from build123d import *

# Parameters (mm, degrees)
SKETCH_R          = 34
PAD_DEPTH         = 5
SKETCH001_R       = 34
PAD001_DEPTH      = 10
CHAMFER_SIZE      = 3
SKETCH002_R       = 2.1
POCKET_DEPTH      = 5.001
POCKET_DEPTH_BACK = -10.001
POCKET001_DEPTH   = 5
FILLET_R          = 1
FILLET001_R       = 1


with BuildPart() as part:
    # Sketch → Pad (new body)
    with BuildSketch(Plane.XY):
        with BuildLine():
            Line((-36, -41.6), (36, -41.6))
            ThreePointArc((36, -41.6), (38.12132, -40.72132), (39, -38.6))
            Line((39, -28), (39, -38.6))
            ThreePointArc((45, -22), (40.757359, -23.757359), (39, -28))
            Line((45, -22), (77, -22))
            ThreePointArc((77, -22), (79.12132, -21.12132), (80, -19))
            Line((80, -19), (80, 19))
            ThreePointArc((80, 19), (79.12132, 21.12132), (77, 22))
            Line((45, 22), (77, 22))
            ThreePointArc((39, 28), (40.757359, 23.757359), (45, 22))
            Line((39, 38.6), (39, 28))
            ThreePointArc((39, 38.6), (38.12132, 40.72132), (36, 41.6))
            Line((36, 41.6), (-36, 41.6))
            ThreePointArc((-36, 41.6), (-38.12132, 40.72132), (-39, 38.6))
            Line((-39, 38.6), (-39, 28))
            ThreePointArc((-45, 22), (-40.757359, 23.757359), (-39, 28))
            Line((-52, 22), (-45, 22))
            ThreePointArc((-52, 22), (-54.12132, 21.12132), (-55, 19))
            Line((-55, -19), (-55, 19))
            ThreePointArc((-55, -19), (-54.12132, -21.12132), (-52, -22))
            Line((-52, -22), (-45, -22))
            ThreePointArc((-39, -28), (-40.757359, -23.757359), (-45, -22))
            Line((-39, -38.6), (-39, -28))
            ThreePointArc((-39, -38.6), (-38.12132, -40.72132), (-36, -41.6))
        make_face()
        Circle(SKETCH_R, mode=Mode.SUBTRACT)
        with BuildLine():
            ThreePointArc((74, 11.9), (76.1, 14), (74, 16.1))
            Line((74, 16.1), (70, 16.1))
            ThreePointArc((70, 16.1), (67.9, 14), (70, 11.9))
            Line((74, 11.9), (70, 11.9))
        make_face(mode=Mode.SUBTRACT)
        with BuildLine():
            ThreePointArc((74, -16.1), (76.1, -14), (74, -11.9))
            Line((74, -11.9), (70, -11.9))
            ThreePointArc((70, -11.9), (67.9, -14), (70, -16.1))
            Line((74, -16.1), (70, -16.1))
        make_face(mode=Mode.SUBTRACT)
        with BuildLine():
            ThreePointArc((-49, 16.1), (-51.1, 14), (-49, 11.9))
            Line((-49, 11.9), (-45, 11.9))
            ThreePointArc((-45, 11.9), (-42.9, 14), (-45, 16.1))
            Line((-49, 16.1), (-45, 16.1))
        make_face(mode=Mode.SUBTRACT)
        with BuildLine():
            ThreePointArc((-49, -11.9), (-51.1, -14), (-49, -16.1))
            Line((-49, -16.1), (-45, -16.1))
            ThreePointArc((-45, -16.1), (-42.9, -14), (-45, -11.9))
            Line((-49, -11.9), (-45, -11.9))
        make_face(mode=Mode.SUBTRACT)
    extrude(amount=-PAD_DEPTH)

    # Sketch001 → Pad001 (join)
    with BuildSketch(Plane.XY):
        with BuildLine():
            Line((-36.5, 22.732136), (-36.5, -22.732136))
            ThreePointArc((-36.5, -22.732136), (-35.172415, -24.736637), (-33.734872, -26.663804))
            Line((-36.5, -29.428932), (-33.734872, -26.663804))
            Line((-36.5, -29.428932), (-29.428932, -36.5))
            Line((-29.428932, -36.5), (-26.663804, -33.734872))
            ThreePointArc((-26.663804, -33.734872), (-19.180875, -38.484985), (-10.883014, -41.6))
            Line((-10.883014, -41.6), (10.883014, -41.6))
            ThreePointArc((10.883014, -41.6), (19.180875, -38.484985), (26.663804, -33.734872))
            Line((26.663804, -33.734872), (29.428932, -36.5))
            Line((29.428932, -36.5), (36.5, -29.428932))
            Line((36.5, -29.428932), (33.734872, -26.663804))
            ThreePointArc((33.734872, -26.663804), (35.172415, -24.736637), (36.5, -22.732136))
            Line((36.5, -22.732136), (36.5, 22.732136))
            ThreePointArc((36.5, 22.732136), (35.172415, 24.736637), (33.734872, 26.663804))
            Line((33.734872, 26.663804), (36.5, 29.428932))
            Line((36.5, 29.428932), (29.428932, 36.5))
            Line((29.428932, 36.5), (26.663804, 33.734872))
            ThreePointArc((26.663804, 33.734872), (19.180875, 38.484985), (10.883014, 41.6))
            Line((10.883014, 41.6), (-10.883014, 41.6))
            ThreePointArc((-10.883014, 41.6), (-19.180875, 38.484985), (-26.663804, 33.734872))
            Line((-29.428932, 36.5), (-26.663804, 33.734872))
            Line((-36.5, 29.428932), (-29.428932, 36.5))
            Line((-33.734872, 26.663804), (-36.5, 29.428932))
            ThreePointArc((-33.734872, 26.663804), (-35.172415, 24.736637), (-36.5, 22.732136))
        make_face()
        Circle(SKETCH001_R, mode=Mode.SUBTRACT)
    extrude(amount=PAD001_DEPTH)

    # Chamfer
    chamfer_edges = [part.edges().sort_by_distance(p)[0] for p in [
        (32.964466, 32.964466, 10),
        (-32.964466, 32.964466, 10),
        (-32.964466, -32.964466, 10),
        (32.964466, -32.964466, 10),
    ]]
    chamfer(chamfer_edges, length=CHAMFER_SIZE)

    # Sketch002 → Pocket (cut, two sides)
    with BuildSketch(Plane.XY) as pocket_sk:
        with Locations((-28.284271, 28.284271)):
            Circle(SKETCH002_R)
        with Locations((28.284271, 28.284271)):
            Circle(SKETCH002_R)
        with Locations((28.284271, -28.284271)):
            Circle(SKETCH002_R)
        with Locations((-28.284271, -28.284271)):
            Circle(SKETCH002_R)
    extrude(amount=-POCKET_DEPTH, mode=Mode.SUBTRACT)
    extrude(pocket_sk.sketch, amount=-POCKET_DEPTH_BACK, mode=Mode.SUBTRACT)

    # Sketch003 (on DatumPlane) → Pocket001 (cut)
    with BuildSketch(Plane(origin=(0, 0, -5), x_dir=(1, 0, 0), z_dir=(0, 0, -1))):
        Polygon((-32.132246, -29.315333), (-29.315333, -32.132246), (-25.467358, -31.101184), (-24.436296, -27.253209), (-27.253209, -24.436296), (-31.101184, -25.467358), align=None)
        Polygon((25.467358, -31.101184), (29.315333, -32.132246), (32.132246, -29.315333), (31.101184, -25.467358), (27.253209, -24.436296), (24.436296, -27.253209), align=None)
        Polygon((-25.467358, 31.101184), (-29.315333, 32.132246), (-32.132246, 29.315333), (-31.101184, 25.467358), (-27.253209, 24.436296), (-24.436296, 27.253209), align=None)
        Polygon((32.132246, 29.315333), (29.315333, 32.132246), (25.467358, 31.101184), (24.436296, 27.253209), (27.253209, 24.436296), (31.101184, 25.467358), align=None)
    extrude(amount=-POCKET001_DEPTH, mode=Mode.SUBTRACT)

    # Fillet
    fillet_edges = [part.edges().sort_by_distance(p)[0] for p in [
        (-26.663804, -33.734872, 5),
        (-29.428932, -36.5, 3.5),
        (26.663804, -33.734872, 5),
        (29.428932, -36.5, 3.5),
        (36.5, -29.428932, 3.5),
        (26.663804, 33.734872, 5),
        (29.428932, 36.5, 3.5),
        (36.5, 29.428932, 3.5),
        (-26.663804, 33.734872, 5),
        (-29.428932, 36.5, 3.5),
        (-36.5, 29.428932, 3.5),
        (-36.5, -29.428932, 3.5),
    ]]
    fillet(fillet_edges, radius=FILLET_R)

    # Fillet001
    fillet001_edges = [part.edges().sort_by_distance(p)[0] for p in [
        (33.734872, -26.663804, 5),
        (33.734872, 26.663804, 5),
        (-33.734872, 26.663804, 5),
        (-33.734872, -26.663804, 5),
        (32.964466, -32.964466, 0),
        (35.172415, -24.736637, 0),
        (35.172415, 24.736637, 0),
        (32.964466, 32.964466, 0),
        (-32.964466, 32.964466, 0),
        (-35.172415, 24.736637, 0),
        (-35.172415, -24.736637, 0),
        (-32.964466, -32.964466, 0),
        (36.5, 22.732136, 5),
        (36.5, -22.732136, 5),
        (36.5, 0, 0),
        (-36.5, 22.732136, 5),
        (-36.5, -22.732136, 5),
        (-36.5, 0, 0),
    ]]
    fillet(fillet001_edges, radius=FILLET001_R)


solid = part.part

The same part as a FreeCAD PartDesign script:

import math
import FreeCAD as App
import Part
import Sketcher
from FreeCAD import Vector
Q = App.Units.Quantity


def edges_at(feature, points):
    """Names of the edges that pass closest to the given points."""
    edges = feature.Shape.Edges
    near = lambda p: min(range(len(edges)), key=lambda i: edges[i].distToShape(Part.Vertex(*p))[0])
    return sorted({f"Edge{near(p) + 1}" for p in points})

doc = App.newDocument("Part")
body = doc.addObject("PartDesign::Body", "Body")

sketch1 = doc.addObject("Sketcher::SketchObject", "Sketch")
body.addObject(sketch1)
sketch1.AttachmentSupport = (doc.XY_Plane, [""])
sketch1.MapMode = "FlatFace"
sketch1.addGeometry([
    Part.LineSegment(Vector(-36, -41.6, 0), Vector(36, -41.6, 0)),
    Part.ArcOfCircle(Part.Circle(Vector(36, -38.6, 0), Vector(0, 0, 1), 3), math.radians(-90), math.radians(0)),
    Part.LineSegment(Vector(39, -38.6, 0), Vector(39, -28, 0)),
    Part.ArcOfCircle(Part.Circle(Vector(45, -28, 0), Vector(0, 0, 1), 6), math.radians(90), math.radians(180)),
    Part.LineSegment(Vector(45, -22, 0), Vector(77, -22, 0)),
    Part.ArcOfCircle(Part.Circle(Vector(77, -19, 0), Vector(0, 0, 1), 3), math.radians(-90), math.radians(0)),
    Part.LineSegment(Vector(80, -19, 0), Vector(80, 19, 0)),
    Part.ArcOfCircle(Part.Circle(Vector(77, 19, 0), Vector(0, 0, 1), 3), math.radians(0), math.radians(90)),
    Part.LineSegment(Vector(77, 22, 0), Vector(45, 22, 0)),
    Part.ArcOfCircle(Part.Circle(Vector(45, 28, 0), Vector(0, 0, 1), 6), math.radians(180), math.radians(270)),
    Part.LineSegment(Vector(39, 28, 0), Vector(39, 38.6, 0)),
    Part.ArcOfCircle(Part.Circle(Vector(36, 38.6, 0), Vector(0, 0, 1), 3), math.radians(0), math.radians(90)),
    Part.LineSegment(Vector(36, 41.6, 0), Vector(-36, 41.6, 0)),
    Part.ArcOfCircle(Part.Circle(Vector(-36, 38.6, 0), Vector(0, 0, 1), 3), math.radians(90), math.radians(180)),
    Part.LineSegment(Vector(-39, 38.6, 0), Vector(-39, 28, 0)),
    Part.ArcOfCircle(Part.Circle(Vector(-45, 28, 0), Vector(0, 0, 1), 6), math.radians(-90), math.radians(0)),
    Part.LineSegment(Vector(-45, 22, 0), Vector(-52, 22, 0)),
    Part.ArcOfCircle(Part.Circle(Vector(-52, 19, 0), Vector(0, 0, 1), 3), math.radians(90), math.radians(180)),
    Part.LineSegment(Vector(-55, 19, 0), Vector(-55, -19, 0)),
    Part.ArcOfCircle(Part.Circle(Vector(-52, -19, 0), Vector(0, 0, 1), 3), math.radians(-180), math.radians(-90)),
    Part.LineSegment(Vector(-52, -22, 0), Vector(-45, -22, 0)),
    Part.ArcOfCircle(Part.Circle(Vector(-45, -28, 0), Vector(0, 0, 1), 6), math.radians(0), math.radians(90)),
    Part.LineSegment(Vector(-39, -28, 0), Vector(-39, -38.6, 0)),
    Part.ArcOfCircle(Part.Circle(Vector(-36, -38.6, 0), Vector(0, 0, 1), 3), math.radians(-180), math.radians(-90)),
    Part.ArcOfCircle(Part.Circle(Vector(-49, -14, 0), Vector(0, 0, 1), 2.1), math.radians(90), math.radians(270)),
    Part.LineSegment(Vector(-49, -11.9, 0), Vector(-45, -11.9, 0)),
    Part.ArcOfCircle(Part.Circle(Vector(-45, -14, 0), Vector(0, 0, 1), 2.1), math.radians(-90), math.radians(90)),
    Part.LineSegment(Vector(-45, -16.1, 0), Vector(-49, -16.1, 0)),
    Part.ArcOfCircle(Part.Circle(Vector(74, -14, 0), Vector(0, 0, 1), 2.1), math.radians(-90), math.radians(90)),
    Part.LineSegment(Vector(74, -16.1, 0), Vector(70, -16.1, 0)),
    Part.ArcOfCircle(Part.Circle(Vector(70, -14, 0), Vector(0, 0, 1), 2.1), math.radians(90), math.radians(270)),
    Part.LineSegment(Vector(70, -11.9, 0), Vector(74, -11.9, 0)),
    Part.ArcOfCircle(Part.Circle(Vector(-49, 14, 0), Vector(0, 0, 1), 2.1), math.radians(90), math.radians(270)),
    Part.LineSegment(Vector(-49, 16.1, 0), Vector(-45, 16.1, 0)),
    Part.ArcOfCircle(Part.Circle(Vector(-45, 14, 0), Vector(0, 0, 1), 2.1), math.radians(-90), math.radians(90)),
    Part.LineSegment(Vector(-45, 11.9, 0), Vector(-49, 11.9, 0)),
    Part.Circle(Vector(0, 0, 0), Vector(0, 0, 1), 34),
    Part.ArcOfCircle(Part.Circle(Vector(74, 14, 0), Vector(0, 0, 1), 2.1), math.radians(-90), math.radians(90)),
    Part.LineSegment(Vector(74, 11.9, 0), Vector(70, 11.9, 0)),
    Part.ArcOfCircle(Part.Circle(Vector(70, 14, 0), Vector(0, 0, 1), 2.1), math.radians(90), math.radians(270)),
    Part.LineSegment(Vector(70, 16.1, 0), Vector(74, 16.1, 0)),
], False)
sketch1.addConstraint([
    Sketcher.Constraint("Tangent", 0, 2, 1, 1),
    Sketcher.Constraint("Tangent", 1, 2, 2, 1),
    Sketcher.Constraint("Tangent", 2, 2, 3, 2),
    Sketcher.Constraint("Tangent", 3, 1, 4, 1),
    Sketcher.Constraint("Tangent", 4, 2, 5, 1),
    Sketcher.Constraint("Tangent", 5, 2, 6, 1),
    Sketcher.Constraint("Tangent", 6, 2, 7, 1),
    Sketcher.Constraint("Tangent", 7, 2, 8, 1),
    Sketcher.Constraint("Tangent", 8, 2, 9, 2),
    Sketcher.Constraint("Tangent", 9, 1, 10, 1),
    Sketcher.Constraint("Tangent", 10, 2, 11, 1),
    Sketcher.Constraint("Tangent", 11, 2, 12, 1),
    Sketcher.Constraint("Tangent", 12, 2, 13, 1),
    Sketcher.Constraint("Tangent", 13, 2, 14, 1),
    Sketcher.Constraint("Tangent", 14, 2, 15, 2),
    Sketcher.Constraint("Tangent", 15, 1, 16, 1),
    Sketcher.Constraint("Tangent", 16, 2, 17, 1),
    Sketcher.Constraint("Tangent", 17, 2, 18, 1),
    Sketcher.Constraint("Tangent", 18, 2, 19, 1),
    Sketcher.Constraint("Tangent", 19, 2, 20, 1),
    Sketcher.Constraint("Tangent", 20, 2, 21, 2),
    Sketcher.Constraint("Tangent", 21, 1, 22, 1),
    Sketcher.Constraint("Tangent", 22, 2, 23, 1),
    Sketcher.Constraint("Tangent", 23, 2, 0, 1),
    Sketcher.Constraint("Tangent", 24, 1, 25, 1),
    Sketcher.Constraint("Tangent", 25, 2, 26, 2),
    Sketcher.Constraint("Tangent", 26, 1, 27, 1),
    Sketcher.Constraint("Tangent", 27, 2, 24, 2),
    Sketcher.Constraint("Tangent", 28, 1, 29, 1),
    Sketcher.Constraint("Tangent", 29, 2, 30, 2),
    Sketcher.Constraint("Tangent", 30, 1, 31, 1),
    Sketcher.Constraint("Tangent", 31, 2, 28, 2),
    Sketcher.Constraint("Tangent", 32, 1, 33, 1),
    Sketcher.Constraint("Tangent", 33, 2, 34, 2),
    Sketcher.Constraint("Tangent", 34, 1, 35, 1),
    Sketcher.Constraint("Tangent", 35, 2, 32, 2),
    Sketcher.Constraint("Tangent", 37, 1, 38, 1),
    Sketcher.Constraint("Tangent", 38, 2, 39, 2),
    Sketcher.Constraint("Tangent", 39, 1, 40, 1),
    Sketcher.Constraint("Tangent", 40, 2, 37, 2),
    Sketcher.Constraint("Horizontal", 0),
    Sketcher.Constraint("Vertical", 2),
    Sketcher.Constraint("Horizontal", 4),
    Sketcher.Constraint("Vertical", 6),
    Sketcher.Constraint("Horizontal", 8),
    Sketcher.Constraint("Vertical", 10),
    Sketcher.Constraint("Horizontal", 12),
    Sketcher.Constraint("Vertical", 14),
    Sketcher.Constraint("Horizontal", 16),
    Sketcher.Constraint("Vertical", 18),
    Sketcher.Constraint("Horizontal", 20),
    Sketcher.Constraint("Vertical", 22),
    Sketcher.Constraint("Horizontal", 25),
    Sketcher.Constraint("Horizontal", 27),
    Sketcher.Constraint("Horizontal", 29),
    Sketcher.Constraint("Horizontal", 31),
    Sketcher.Constraint("Horizontal", 33),
    Sketcher.Constraint("Horizontal", 35),
    Sketcher.Constraint("Horizontal", 38),
    Sketcher.Constraint("Horizontal", 40),
    Sketcher.Constraint("Coincident", 36, 3, -1, 1),
    Sketcher.Constraint("Equal", 1, 5),
    Sketcher.Constraint("Equal", 5, 7),
    Sketcher.Constraint("Equal", 3, 9),
    Sketcher.Constraint("Equal", 7, 11),
    Sketcher.Constraint("Equal", 11, 13),
    Sketcher.Constraint("Equal", 9, 15),
    Sketcher.Constraint("Equal", 13, 17),
    Sketcher.Constraint("Equal", 17, 19),
    Sketcher.Constraint("Equal", 15, 21),
    Sketcher.Constraint("Equal", 19, 23),
    Sketcher.Constraint("Equal", 26, 28),
    Sketcher.Constraint("Equal", 30, 32),
    Sketcher.Constraint("Equal", 34, 37),
    Sketcher.Constraint("Symmetric", 1, 3, 13, 3, -1, 1),
    Sketcher.Constraint("Symmetric", 9, 3, 21, 3, -1, 1),
    Sketcher.Constraint("Symmetric", 9, 3, 15, 3, -2),
    Sketcher.Constraint("Symmetric", 24, 3, 32, 3, -1),
    Sketcher.Constraint("Symmetric", 28, 3, 37, 3, -1),
    Sketcher.Constraint("Horizontal", 5, 3, 19, 3),
    Sketcher.Constraint("Horizontal", 26, 3, 28, 3),
    Sketcher.Constraint("Vertical", 21, 3, 26, 3),
    Sketcher.Constraint("Vertical", 26, 3, 34, 3),
    Sketcher.Constraint("Vertical", 30, 3, 39, 3),
    Sketcher.Constraint("Equal", 27, 29),
    Sketcher.Constraint("Diameter", 36, 68.0),
    Sketcher.Constraint("Radius", 1, 3.000001),
    Sketcher.Constraint("Radius", 3, 5.999999),
    Sketcher.Constraint("Radius", 24, 2.1),
    Sketcher.Constraint("DistanceX", 0, 1, 0, 2, 72.0),
    Sketcher.Constraint("DistanceX", 4, 1, 4, 2, 32.0),
    Sketcher.Constraint("DistanceX", 16, 2, 16, 1, 7.0),
    Sketcher.Constraint("DistanceX", 25, 1, 25, 2, 4.0),
    Sketcher.Constraint("DistanceY", 6, 1, 6, 2, 38.0),
    Sketcher.Constraint("DistanceY", 2, 1, 2, 2, 10.6),
    Sketcher.Constraint("DistanceY", 24, 3, -1, 1, 14.0),
    Sketcher.Constraint("DistanceX", -1, 1, 28, 3, 74.0),
])
pad1 = doc.addObject("PartDesign::Pad", "Pad")
body.addObject(pad1)
pad1.Profile = sketch1
pad1.Length = 5
pad1.Reversed = True

sketch2 = doc.addObject("Sketcher::SketchObject", "Sketch001")
body.addObject(sketch2)
sketch2.AttachmentSupport = (doc.XY_Plane, [""])
sketch2.MapMode = "FlatFace"
sketch2.addGeometry([
    Part.LineSegment(Vector(-36.5, 22.732136, 0), Vector(-36.5, -22.732136, 0)),
    Part.ArcOfCircle(Part.Circle(Vector(0.000201, 0.000138, 0), Vector(0, 0, 1), 43.000244), math.radians(-148.085407), math.radians(-141.677427)),
    Part.LineSegment(Vector(-33.734872, -26.663804, 0), Vector(-36.5, -29.428932, 0)),
    Part.LineSegment(Vector(-36.5, -29.428932, 0), Vector(-29.428932, -36.5, 0)),
    Part.LineSegment(Vector(-29.428932, -36.5, 0), Vector(-26.663804, -33.734872, 0)),
    Part.ArcOfCircle(Part.Circle(Vector(-0.000007, -0.000011, 0), Vector(0, 0, 1), 42.999988), math.radians(-128.322597), math.radians(-104.660632)),
    Part.LineSegment(Vector(-10.883014, -41.6, 0), Vector(10.883014, -41.6, 0)),
    Part.ArcOfCircle(Part.Circle(Vector(0.000007, -0.000011, 0), Vector(0, 0, 1), 42.999988), math.radians(-75.339368), math.radians(-51.677403)),
    Part.LineSegment(Vector(26.663804, -33.734872, 0), Vector(29.428932, -36.5, 0)),
    Part.LineSegment(Vector(29.428932, -36.5, 0), Vector(36.5, -29.428932, 0)),
    Part.LineSegment(Vector(36.5, -29.428932, 0), Vector(33.734872, -26.663804, 0)),
    Part.ArcOfCircle(Part.Circle(Vector(-0.000201, 0.000138, 0), Vector(0, 0, 1), 43.000244), math.radians(-38.322573), math.radians(-31.914593)),
    Part.LineSegment(Vector(36.5, -22.732136, 0), Vector(36.5, 22.732136, 0)),
    Part.ArcOfCircle(Part.Circle(Vector(-0.000201, -0.000138, 0), Vector(0, 0, 1), 43.000244), math.radians(31.914593), math.radians(38.322573)),
    Part.LineSegment(Vector(33.734872, 26.663804, 0), Vector(36.5, 29.428932, 0)),
    Part.LineSegment(Vector(36.5, 29.428932, 0), Vector(29.428932, 36.5, 0)),
    Part.LineSegment(Vector(29.428932, 36.5, 0), Vector(26.663804, 33.734872, 0)),
    Part.ArcOfCircle(Part.Circle(Vector(0.000007, 0.000011, 0), Vector(0, 0, 1), 42.999988), math.radians(51.677403), math.radians(75.339368)),
    Part.LineSegment(Vector(10.883014, 41.6, 0), Vector(-10.883014, 41.6, 0)),
    Part.ArcOfCircle(Part.Circle(Vector(-0.000007, 0.000011, 0), Vector(0, 0, 1), 42.999988), math.radians(104.660632), math.radians(128.322597)),
    Part.LineSegment(Vector(-26.663804, 33.734872, 0), Vector(-29.428932, 36.5, 0)),
    Part.LineSegment(Vector(-29.428932, 36.5, 0), Vector(-36.5, 29.428932, 0)),
    Part.LineSegment(Vector(-36.5, 29.428932, 0), Vector(-33.734872, 26.663804, 0)),
    Part.ArcOfCircle(Part.Circle(Vector(0.000201, -0.000138, 0), Vector(0, 0, 1), 43.000244), math.radians(141.677427), math.radians(148.085407)),
    Part.Circle(Vector(0, 0, 0), Vector(0, 0, 1), 34),
], False)
sketch2.addConstraint([
    Sketcher.Constraint("Coincident", 0, 2, 1, 1),
    Sketcher.Constraint("Coincident", 1, 2, 2, 1),
    Sketcher.Constraint("Coincident", 2, 2, 3, 1),
    Sketcher.Constraint("Coincident", 3, 2, 4, 1),
    Sketcher.Constraint("Coincident", 4, 2, 5, 1),
    Sketcher.Constraint("Coincident", 5, 2, 6, 1),
    Sketcher.Constraint("Coincident", 6, 2, 7, 1),
    Sketcher.Constraint("Coincident", 7, 2, 8, 1),
    Sketcher.Constraint("Coincident", 8, 2, 9, 1),
    Sketcher.Constraint("Coincident", 9, 2, 10, 1),
    Sketcher.Constraint("Coincident", 10, 2, 11, 1),
    Sketcher.Constraint("Coincident", 11, 2, 12, 1),
    Sketcher.Constraint("Coincident", 12, 2, 13, 1),
    Sketcher.Constraint("Coincident", 13, 2, 14, 1),
    Sketcher.Constraint("Coincident", 14, 2, 15, 1),
    Sketcher.Constraint("Coincident", 15, 2, 16, 1),
    Sketcher.Constraint("Coincident", 16, 2, 17, 1),
    Sketcher.Constraint("Coincident", 17, 2, 18, 1),
    Sketcher.Constraint("Coincident", 18, 2, 19, 1),
    Sketcher.Constraint("Coincident", 19, 2, 20, 1),
    Sketcher.Constraint("Coincident", 20, 2, 21, 1),
    Sketcher.Constraint("Coincident", 21, 2, 22, 1),
    Sketcher.Constraint("Coincident", 22, 2, 23, 1),
    Sketcher.Constraint("Coincident", 23, 2, 0, 1),
    Sketcher.Constraint("Vertical", 0),
    Sketcher.Constraint("Horizontal", 6),
    Sketcher.Constraint("Vertical", 12),
    Sketcher.Constraint("Horizontal", 18),
    Sketcher.Constraint("Coincident", 24, 3, -1, 1),
    Sketcher.Constraint("Equal", 5, 7),
    Sketcher.Constraint("Equal", 1, 11),
    Sketcher.Constraint("Equal", 11, 13),
    Sketcher.Constraint("Equal", 7, 17),
    Sketcher.Constraint("Equal", 17, 19),
    Sketcher.Constraint("Equal", 13, 23),
    Sketcher.Constraint("Symmetric", 1, 3, 13, 3, -1, 1),
    Sketcher.Constraint("Symmetric", 5, 3, 17, 3, -1, 1),
    Sketcher.Constraint("Symmetric", 7, 3, 19, 3, -1, 1),
    Sketcher.Constraint("Symmetric", 11, 3, 23, 3, -1, 1),
    Sketcher.Constraint("Symmetric", 2, 2, 14, 2, -1, 1),
    Sketcher.Constraint("Symmetric", 3, 2, 15, 2, -1, 1),
    Sketcher.Constraint("Symmetric", 8, 2, 20, 2, -1, 1),
    Sketcher.Constraint("Symmetric", 9, 2, 21, 2, -1, 1),
    Sketcher.Constraint("Symmetric", 5, 3, 7, 3, -2),
    Sketcher.Constraint("Symmetric", 1, 3, 11, 3, -2),
    Sketcher.Constraint("Symmetric", 3, 2, 8, 2, -2),
    Sketcher.Constraint("Symmetric", 2, 2, 9, 2, -2),
    Sketcher.Constraint("Perpendicular", 2, 3),
    Sketcher.Constraint("Perpendicular", 3, 4),
    Sketcher.Constraint("Perpendicular", 4, 8),
    Sketcher.Constraint("Perpendicular", 8, 9),
    Sketcher.Constraint("Perpendicular", 9, 10),
    Sketcher.Constraint("Perpendicular", 10, 14),
    Sketcher.Constraint("Perpendicular", 15, 16),
    Sketcher.Constraint("Perpendicular", 16, 20),
    Sketcher.Constraint("Perpendicular", 21, 22),
    Sketcher.Constraint("Horizontal", 0, 2, 11, 2),
    Sketcher.Constraint("Vertical", 0, 2, 2, 2),
    Sketcher.Constraint("Vertical", 6, 2, 17, 2),
    Sketcher.Constraint("Equal", 2, 4),
    Sketcher.Constraint("Diameter", 24, 68.0),
    Sketcher.Constraint("Distance", 3, 10.0),
    Sketcher.Constraint("DistanceX", 0, 2, -1, 1, 36.5),
    Sketcher.Constraint("DistanceY", 3, 2, -1, 1, 36.5),
    Sketcher.Constraint("DistanceY", 5, 2, -1, 1, 41.6),
    Sketcher.Constraint("Radius", 1, 43.000244),
    Sketcher.Constraint("Radius", 5, 42.999988),
    Sketcher.Constraint("DistanceX", -1, 1, 1, 3, 0.000201),
    Sketcher.Constraint("Distance", 2, 3.910482),
    Sketcher.Constraint("DistanceX", 6, 1, 6, 2, 21.766028),
])
pad2 = doc.addObject("PartDesign::Pad", "Pad001")
body.addObject(pad2)
pad2.Profile = sketch2
pad2.Length = 10
doc.recompute()

chamfer = doc.addObject("PartDesign::Chamfer", "Chamfer")
body.addObject(chamfer)
chamfer.Base = (pad2, edges_at(pad2, [
    (32.964, 32.964, 10),
    (-32.964, 32.964, 10),
    (-32.964, -32.964, 10),
    (32.964, -32.964, 10),
]))
chamfer.Size = 3

sketch3 = doc.addObject("Sketcher::SketchObject", "Sketch002")
body.addObject(sketch3)
sketch3.AttachmentSupport = (doc.XY_Plane, [""])
sketch3.MapMode = "FlatFace"
sketch3.addGeometry([
    Part.Circle(Vector(-28.3, 28.3, 0), Vector(0, 0, 1), 2.1),
    Part.Circle(Vector(28.3, 28.3, 0), Vector(0, 0, 1), 2.1),
    Part.Circle(Vector(28.3, -28.3, 0), Vector(0, 0, 1), 2.1),
    Part.Circle(Vector(-28.3, -28.3, 0), Vector(0, 0, 1), 2.1),
], False)
sketch3.addConstraint([
    Sketcher.Constraint("Equal", 0, 1),
    Sketcher.Constraint("Equal", 1, 2),
    Sketcher.Constraint("Equal", 2, 3),
    Sketcher.Constraint("Symmetric", 0, 3, 2, 3, -1, 1),
    Sketcher.Constraint("Symmetric", 1, 3, 3, 3, -1, 1),
    Sketcher.Constraint("Symmetric", 0, 3, 1, 3, -2),
    Sketcher.Constraint("Diameter", 0, 4.2),
    Sketcher.Constraint("DistanceX", 0, 3, -1, 1, 28.284271),
    Sketcher.Constraint("DistanceY", -1, 1, 0, 3, 28.284271),
])
pocket1 = doc.addObject("PartDesign::Pocket", "Pocket")
body.addObject(pocket1)
pocket1.Profile = sketch3
pocket1.Type = "ThroughAll"
pocket1.Midplane = True

sketch4 = doc.addObject("Sketcher::SketchObject", "Sketch003")
body.addObject(sketch4)
sketch4.AttachmentSupport = (doc.XY_Plane, [""])
sketch4.MapMode = "FlatFace"
sketch4.AttachmentOffset = App.Placement(Vector(0, 0, -5), App.Rotation())
sketch4.addGeometry([
    Part.LineSegment(Vector(-32.1, 29.3, 0), Vector(-29.3, 32.1, 0)),
    Part.LineSegment(Vector(-29.3, 32.1, 0), Vector(-25.5, 31.1, 0)),
    Part.LineSegment(Vector(-25.5, 31.1, 0), Vector(-24.4, 27.3, 0)),
    Part.LineSegment(Vector(-24.4, 27.3, 0), Vector(-27.3, 24.4, 0)),
    Part.LineSegment(Vector(-27.3, 24.4, 0), Vector(-31.1, 25.5, 0)),
    Part.LineSegment(Vector(-31.1, 25.5, 0), Vector(-32.1, 29.3, 0)),
    Part.LineSegment(Vector(25.5, 31.1, 0), Vector(29.3, 32.1, 0)),
    Part.LineSegment(Vector(29.3, 32.1, 0), Vector(32.1, 29.3, 0)),
    Part.LineSegment(Vector(32.1, 29.3, 0), Vector(31.1, 25.5, 0)),
    Part.LineSegment(Vector(31.1, 25.5, 0), Vector(27.3, 24.4, 0)),
    Part.LineSegment(Vector(27.3, 24.4, 0), Vector(24.4, 27.3, 0)),
    Part.LineSegment(Vector(24.4, 27.3, 0), Vector(25.5, 31.1, 0)),
    Part.LineSegment(Vector(-25.5, -31.1, 0), Vector(-29.3, -32.1, 0)),
    Part.LineSegment(Vector(-29.3, -32.1, 0), Vector(-32.1, -29.3, 0)),
    Part.LineSegment(Vector(-32.1, -29.3, 0), Vector(-31.1, -25.5, 0)),
    Part.LineSegment(Vector(-31.1, -25.5, 0), Vector(-27.3, -24.4, 0)),
    Part.LineSegment(Vector(-27.3, -24.4, 0), Vector(-24.4, -27.3, 0)),
    Part.LineSegment(Vector(-24.4, -27.3, 0), Vector(-25.5, -31.1, 0)),
    Part.LineSegment(Vector(32.1, -29.3, 0), Vector(29.3, -32.1, 0)),
    Part.LineSegment(Vector(29.3, -32.1, 0), Vector(25.5, -31.1, 0)),
    Part.LineSegment(Vector(25.5, -31.1, 0), Vector(24.4, -27.3, 0)),
    Part.LineSegment(Vector(24.4, -27.3, 0), Vector(27.3, -24.4, 0)),
    Part.LineSegment(Vector(27.3, -24.4, 0), Vector(31.1, -25.5, 0)),
    Part.LineSegment(Vector(31.1, -25.5, 0), Vector(32.1, -29.3, 0)),
], False)
sketch4.addConstraint([
    Sketcher.Constraint("Coincident", 0, 2, 1, 1),
    Sketcher.Constraint("Coincident", 1, 2, 2, 1),
    Sketcher.Constraint("Coincident", 2, 2, 3, 1),
    Sketcher.Constraint("Coincident", 3, 2, 4, 1),
    Sketcher.Constraint("Coincident", 4, 2, 5, 1),
    Sketcher.Constraint("Coincident", 5, 2, 0, 1),
    Sketcher.Constraint("Coincident", 6, 2, 7, 1),
    Sketcher.Constraint("Coincident", 7, 2, 8, 1),
    Sketcher.Constraint("Coincident", 8, 2, 9, 1),
    Sketcher.Constraint("Coincident", 9, 2, 10, 1),
    Sketcher.Constraint("Coincident", 10, 2, 11, 1),
    Sketcher.Constraint("Coincident", 11, 2, 6, 1),
    Sketcher.Constraint("Coincident", 12, 2, 13, 1),
    Sketcher.Constraint("Coincident", 13, 2, 14, 1),
    Sketcher.Constraint("Coincident", 14, 2, 15, 1),
    Sketcher.Constraint("Coincident", 15, 2, 16, 1),
    Sketcher.Constraint("Coincident", 16, 2, 17, 1),
    Sketcher.Constraint("Coincident", 17, 2, 12, 1),
    Sketcher.Constraint("Coincident", 18, 2, 19, 1),
    Sketcher.Constraint("Coincident", 19, 2, 20, 1),
    Sketcher.Constraint("Coincident", 20, 2, 21, 1),
    Sketcher.Constraint("Coincident", 21, 2, 22, 1),
    Sketcher.Constraint("Coincident", 22, 2, 23, 1),
    Sketcher.Constraint("Coincident", 23, 2, 18, 1),
    Sketcher.Constraint("Symmetric", 6, 2, 12, 2, -1, 1),
    Sketcher.Constraint("Symmetric", 7, 2, 13, 2, -1, 1),
    Sketcher.Constraint("Symmetric", 8, 2, 14, 2, -1, 1),
    Sketcher.Constraint("Symmetric", 9, 2, 15, 2, -1, 1),
    Sketcher.Constraint("Symmetric", 10, 2, 16, 2, -1, 1),
    Sketcher.Constraint("Symmetric", 11, 2, 17, 2, -1, 1),
    Sketcher.Constraint("Symmetric", 0, 2, 18, 2, -1, 1),
    Sketcher.Constraint("Symmetric", 1, 2, 19, 2, -1, 1),
    Sketcher.Constraint("Symmetric", 2, 2, 20, 2, -1, 1),
    Sketcher.Constraint("Symmetric", 3, 2, 21, 2, -1, 1),
    Sketcher.Constraint("Symmetric", 4, 2, 22, 2, -1, 1),
    Sketcher.Constraint("Symmetric", 5, 2, 23, 2, -1, 1),
    Sketcher.Constraint("Symmetric", 0, 2, 6, 2, -2),
    Sketcher.Constraint("Symmetric", 5, 2, 7, 2, -2),
    Sketcher.Constraint("Symmetric", 4, 2, 8, 2, -2),
    Sketcher.Constraint("Symmetric", 3, 2, 9, 2, -2),
    Sketcher.Constraint("Symmetric", 2, 2, 10, 2, -2),
    Sketcher.Constraint("Symmetric", 1, 2, 11, 2, -2),
    Sketcher.Constraint("Parallel", 0, 3),
    Sketcher.Constraint("Parallel", 1, 4),
    Sketcher.Constraint("Parallel", 2, 5),
    Sketcher.Constraint("Perpendicular", 5, 6),
    Sketcher.Constraint("Perpendicular", 3, 7),
    Sketcher.Constraint("Equal", 0, 1),
    Sketcher.Constraint("Equal", 1, 2),
    Sketcher.Constraint("Equal", 2, 3),
    Sketcher.Constraint("Angle", 1, Q("-15.000003 deg")),
    Sketcher.Constraint("DistanceX", 1, 2, -1, 1, 25.467358),
    Sketcher.Constraint("DistanceY", -1, 1, 2, 2, 27.253209),
    Sketcher.Constraint("DistanceX", 3, 2, -1, 1, 27.253209),
])
pocket2 = doc.addObject("PartDesign::Pocket", "Pocket001")
body.addObject(pocket2)
pocket2.Profile = sketch4
pocket2.Length = 5
pocket2.Reversed = True
doc.recompute()

fillet = doc.addObject("PartDesign::Fillet", "Fillet")
body.addObject(fillet)
fillet.Base = (pocket2, edges_at(pocket2, [
    (-26.664, -33.735, 5),
    (-29.429, -36.5, 3.5),
    (26.664, -33.735, 5),
    (29.429, -36.5, 3.5),
    (36.5, -29.429, 3.5),
    (26.664, 33.735, 5),
    (29.429, 36.5, 3.5),
    (36.5, 29.429, 3.5),
    (-26.664, 33.735, 5),
    (-29.429, 36.5, 3.5),
    (-36.5, 29.429, 3.5),
    (-36.5, -29.429, 3.5),
]))
fillet.Radius = 1
doc.recompute()

fillet2 = doc.addObject("PartDesign::Fillet", "Fillet001")
body.addObject(fillet2)
fillet2.Base = (fillet, edges_at(fillet, [
    (33.735, -26.664, 5),
    (33.735, 26.664, 5),
    (-33.735, 26.664, 5),
    (-33.735, -26.664, 5),
    (32.964, -32.964, 0),
    (35.172, -24.737, 0),
    (35.172, 24.737, 0),
    (32.964, 32.964, 0),
    (-32.964, 32.964, 0),
    (-35.172, 24.737, 0),
    (-35.172, -24.737, 0),
    (-32.964, -32.964, 0),
    (36.5, 22.732, 5),
    (36.5, -22.732, 5),
    (36.5, 0, 0),
    (-36.5, 22.732, 5),
    (-36.5, -22.732, 5),
    (-36.5, 0, 0),
]))
fillet2.Radius = 1

doc.recompute()
